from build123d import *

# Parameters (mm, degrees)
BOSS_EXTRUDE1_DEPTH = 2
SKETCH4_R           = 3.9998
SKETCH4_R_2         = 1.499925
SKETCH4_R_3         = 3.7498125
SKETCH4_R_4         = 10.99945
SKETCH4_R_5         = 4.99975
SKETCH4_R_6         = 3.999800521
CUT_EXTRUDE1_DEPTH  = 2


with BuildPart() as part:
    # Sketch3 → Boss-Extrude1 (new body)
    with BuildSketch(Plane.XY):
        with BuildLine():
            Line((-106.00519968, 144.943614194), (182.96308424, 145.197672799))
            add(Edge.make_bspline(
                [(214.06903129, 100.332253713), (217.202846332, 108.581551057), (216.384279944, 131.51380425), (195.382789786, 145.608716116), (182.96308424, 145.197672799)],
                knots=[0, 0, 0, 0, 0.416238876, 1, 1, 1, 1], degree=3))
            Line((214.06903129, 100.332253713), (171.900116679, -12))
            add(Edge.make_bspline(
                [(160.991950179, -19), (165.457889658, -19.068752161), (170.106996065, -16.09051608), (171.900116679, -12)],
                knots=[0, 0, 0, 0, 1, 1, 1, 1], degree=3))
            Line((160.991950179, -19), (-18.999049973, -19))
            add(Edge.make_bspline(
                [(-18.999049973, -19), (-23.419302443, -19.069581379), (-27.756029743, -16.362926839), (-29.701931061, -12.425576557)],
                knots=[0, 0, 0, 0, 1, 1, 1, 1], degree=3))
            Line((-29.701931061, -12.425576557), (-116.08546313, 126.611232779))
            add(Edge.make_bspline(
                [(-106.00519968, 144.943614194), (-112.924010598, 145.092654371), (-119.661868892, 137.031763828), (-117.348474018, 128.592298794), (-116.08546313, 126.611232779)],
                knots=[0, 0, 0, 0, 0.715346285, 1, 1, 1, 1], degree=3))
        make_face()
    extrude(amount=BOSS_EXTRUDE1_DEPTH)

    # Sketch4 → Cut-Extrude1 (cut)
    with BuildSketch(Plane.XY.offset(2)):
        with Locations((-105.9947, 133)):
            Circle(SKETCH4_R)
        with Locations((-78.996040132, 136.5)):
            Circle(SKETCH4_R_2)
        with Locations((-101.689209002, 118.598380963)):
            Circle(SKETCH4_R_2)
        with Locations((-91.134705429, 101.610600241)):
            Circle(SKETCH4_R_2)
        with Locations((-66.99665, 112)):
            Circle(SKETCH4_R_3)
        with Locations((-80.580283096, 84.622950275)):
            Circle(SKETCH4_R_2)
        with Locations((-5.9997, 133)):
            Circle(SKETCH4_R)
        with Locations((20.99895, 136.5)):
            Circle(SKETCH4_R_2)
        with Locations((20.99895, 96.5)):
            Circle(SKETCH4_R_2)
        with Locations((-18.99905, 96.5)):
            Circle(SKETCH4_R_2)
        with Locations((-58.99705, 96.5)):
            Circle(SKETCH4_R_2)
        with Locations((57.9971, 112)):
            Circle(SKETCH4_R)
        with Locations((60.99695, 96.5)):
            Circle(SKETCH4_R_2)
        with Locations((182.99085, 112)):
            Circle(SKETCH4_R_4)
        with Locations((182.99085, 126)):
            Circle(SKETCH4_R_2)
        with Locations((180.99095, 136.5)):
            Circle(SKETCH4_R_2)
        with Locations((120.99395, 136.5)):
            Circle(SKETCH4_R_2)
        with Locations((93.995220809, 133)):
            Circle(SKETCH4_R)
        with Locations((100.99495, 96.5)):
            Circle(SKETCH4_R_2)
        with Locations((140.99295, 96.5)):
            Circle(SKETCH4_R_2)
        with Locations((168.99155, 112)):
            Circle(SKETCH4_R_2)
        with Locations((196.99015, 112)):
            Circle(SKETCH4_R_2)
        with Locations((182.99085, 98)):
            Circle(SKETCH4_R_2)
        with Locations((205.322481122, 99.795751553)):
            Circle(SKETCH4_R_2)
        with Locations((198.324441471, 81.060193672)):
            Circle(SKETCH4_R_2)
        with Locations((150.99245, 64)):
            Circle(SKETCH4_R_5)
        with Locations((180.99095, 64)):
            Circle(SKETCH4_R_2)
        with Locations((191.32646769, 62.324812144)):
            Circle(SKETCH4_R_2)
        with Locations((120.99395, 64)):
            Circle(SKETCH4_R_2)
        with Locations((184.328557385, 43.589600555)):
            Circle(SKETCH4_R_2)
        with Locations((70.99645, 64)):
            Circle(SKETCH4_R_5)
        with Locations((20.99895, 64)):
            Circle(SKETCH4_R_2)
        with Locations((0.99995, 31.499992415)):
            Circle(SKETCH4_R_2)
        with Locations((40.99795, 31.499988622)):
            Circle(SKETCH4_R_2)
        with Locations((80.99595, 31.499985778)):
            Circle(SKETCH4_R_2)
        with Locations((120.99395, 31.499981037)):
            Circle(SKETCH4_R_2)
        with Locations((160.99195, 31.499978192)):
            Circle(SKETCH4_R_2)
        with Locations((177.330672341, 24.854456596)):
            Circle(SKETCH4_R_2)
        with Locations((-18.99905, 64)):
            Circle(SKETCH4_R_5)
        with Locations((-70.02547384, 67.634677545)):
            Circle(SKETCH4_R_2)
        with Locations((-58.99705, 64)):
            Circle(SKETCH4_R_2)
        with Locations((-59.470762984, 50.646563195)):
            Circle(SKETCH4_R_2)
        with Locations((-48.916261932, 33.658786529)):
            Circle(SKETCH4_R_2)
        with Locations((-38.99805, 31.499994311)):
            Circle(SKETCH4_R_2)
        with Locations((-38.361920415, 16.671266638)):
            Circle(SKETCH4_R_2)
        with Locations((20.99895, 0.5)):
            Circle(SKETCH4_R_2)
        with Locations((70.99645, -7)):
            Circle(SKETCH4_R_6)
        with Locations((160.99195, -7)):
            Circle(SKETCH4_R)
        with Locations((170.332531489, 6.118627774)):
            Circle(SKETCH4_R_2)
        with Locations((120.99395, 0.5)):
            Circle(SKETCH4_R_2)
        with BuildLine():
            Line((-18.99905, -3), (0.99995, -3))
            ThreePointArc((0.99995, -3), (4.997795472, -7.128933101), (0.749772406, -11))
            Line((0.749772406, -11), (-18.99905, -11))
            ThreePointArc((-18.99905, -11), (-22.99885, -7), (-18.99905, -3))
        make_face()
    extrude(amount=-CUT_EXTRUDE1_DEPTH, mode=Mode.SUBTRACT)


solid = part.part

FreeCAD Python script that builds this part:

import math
import FreeCAD as App
import Part
import Sketcher
from FreeCAD import Vector

doc = App.newDocument("Part")
body = doc.addObject("PartDesign::Body", "Body")

# Sketch on XY plane
sketch1 = body.newObject("Sketcher::SketchObject", "Sketch")
sketch1.AttachmentSupport = (doc.getObject("XY_Plane"), [""])
sketch1.MapMode = "FlatFace"
sketch1.addGeometry([
    Part.LineSegment(Vector(182.963084, 145.197673, 0), Vector(-106.0052, 144.943614, 0)),  # 0
    Part.BSplineCurve([Vector(-106.0052, 144.943614, 0), Vector(-112.924011, 145.092654, 0), Vector(-119.661869, 137.031764, 0), Vector(-117.348474, 128.592299, 0), Vector(-116.085463, 126.611233, 0)], [4, 1, 4], [0, 0.715346285, 1], False, 3, [1, 1, 1, 1, 1], False),  # 1
    Part.LineSegment(Vector(-116.085463, 126.611233, 0), Vector(-29.701931, -12.425577, 0)),  # 2
    Part.BSplineCurve([Vector(-18.99905, -19, 0), Vector(-23.419302, -19.069581, 0), Vector(-27.75603, -16.362927, 0), Vector(-29.701931, -12.425577, 0)], [4, 4], [0, 1], False, 3, [1, 1, 1, 1], False),  # 3
    Part.LineSegment(Vector(-18.99905, -19, 0), Vector(160.99195, -19, 0)),  # 4
    Part.BSplineCurve([Vector(160.99195, -19, 0), Vector(165.45789, -19.068752, 0), Vector(170.106996, -16.090516, 0), Vector(171.900117, -12, 0)], [4, 4], [0, 1], False, 3, [1, 1, 1, 1], False),  # 5
    Part.LineSegment(Vector(171.900117, -12, 0), Vector(214.069031, 100.332254, 0)),  # 6
    Part.BSplineCurve([Vector(214.069031, 100.332254, 0), Vector(217.202846, 108.581551, 0), Vector(216.38428, 131.513804, 0), Vector(195.38279, 145.608716, 0), Vector(182.963084, 145.197673, 0)], [4, 1, 4], [0, 0.416238876, 1], False, 3, [1, 1, 1, 1, 1], False),  # 7
], False)
sketch1.addConstraint([
    Sketcher.Constraint("Block", 1),
    Sketcher.Constraint("Block", 3),
    Sketcher.Constraint("Block", 5),
    Sketcher.Constraint("Block", 7),
    Sketcher.Constraint("Coincident", 0, 2, 1, 1),
    Sketcher.Constraint("Coincident", 1, 2, 2, 1),
    Sketcher.Constraint("Coincident", 2, 2, 3, 2),
    Sketcher.Constraint("Coincident", 3, 1, 4, 1),
    Sketcher.Constraint("Coincident", 4, 2, 5, 1),
    Sketcher.Constraint("Coincident", 5, 2, 6, 1),
    Sketcher.Constraint("Coincident", 6, 2, 7, 1),
    Sketcher.Constraint("Coincident", 7, 2, 0, 1),
])
pad1 = body.newObject("PartDesign::Pad", "Pad")
pad1.Profile = sketch1
pad1.Length = 2

# Sketch on XY plane
sketch2 = body.newObject("Sketcher::SketchObject", "Sketch001")
sketch2.AttachmentSupport = (doc.getObject("XY_Plane"), [""])
sketch2.MapMode = "FlatFace"
sketch2.AttachmentOffset = App.Placement(Vector(0, 0, 2), App.Rotation())
sketch2.addGeometry([
    Part.Circle(Vector(-106, 133, 0), Vector(0, 0, 1), 4),  # 0
    Part.Circle(Vector(-79, 136.5, 0), Vector(0, 0, 1), 1.5),  # 1
    Part.Circle(Vector(-101.7, 118.6, 0), Vector(0, 0, 1), 1.5),  # 2
    Part.Circle(Vector(-91.1, 101.6, 0), Vector(0, 0, 1), 1.5),  # 3
    Part.Circle(Vector(-67, 112, 0), Vector(0, 0, 1), 3.7),  # 4
    Part.Circle(Vector(-80.6, 84.6, 0), Vector(0, 0, 1), 1.5),  # 5
    Part.Circle(Vector(-6, 133, 0), Vector(0, 0, 1), 4),  # 6
    Part.Circle(Vector(21, 136.5, 0), Vector(0, 0, 1), 1.5),  # 7
    Part.Circle(Vector(21, 96.5, 0), Vector(0, 0, 1), 1.5),  # 8
    Part.Circle(Vector(-19, 96.5, 0), Vector(0, 0, 1), 1.5),  # 9
    Part.Circle(Vector(-59, 96.5, 0), Vector(0, 0, 1), 1.5),  # 10
    Part.Circle(Vector(58, 112, 0), Vector(0, 0, 1), 4),  # 11
    Part.Circle(Vector(61, 96.5, 0), Vector(0, 0, 1), 1.5),  # 12
    Part.Circle(Vector(183, 112, 0), Vector(0, 0, 1), 11),  # 13
    Part.Circle(Vector(183, 126, 0), Vector(0, 0, 1), 1.5),  # 14
    Part.Circle(Vector(181, 136.5, 0), Vector(0, 0, 1), 1.5),  # 15
    Part.Circle(Vector(121, 136.5, 0), Vector(0, 0, 1), 1.5),  # 16
    Part.Circle(Vector(94, 133, 0), Vector(0, 0, 1), 4),  # 17
    Part.Circle(Vector(101, 96.5, 0), Vector(0, 0, 1), 1.5),  # 18
    Part.Circle(Vector(141, 96.5, 0), Vector(0, 0, 1), 1.5),  # 19
    Part.Circle(Vector(169, 112, 0), Vector(0, 0, 1), 1.5),  # 20
    Part.Circle(Vector(197, 112, 0), Vector(0, 0, 1), 1.5),  # 21
    Part.Circle(Vector(183, 98, 0), Vector(0, 0, 1), 1.5),  # 22
    Part.Circle(Vector(205.3, 99.8, 0), Vector(0, 0, 1), 1.5),  # 23
    Part.Circle(Vector(198.3, 81.1, 0), Vector(0, 0, 1), 1.5),  # 24
    Part.Circle(Vector(151, 64, 0), Vector(0, 0, 1), 5),  # 25
    Part.Circle(Vector(181, 64, 0), Vector(0, 0, 1), 1.5),  # 26
    Part.Circle(Vector(191.3, 62.3, 0), Vector(0, 0, 1), 1.5),  # 27
    Part.Circle(Vector(121, 64, 0), Vector(0, 0, 1), 1.5),  # 28
    Part.Circle(Vector(184.3, 43.6, 0), Vector(0, 0, 1), 1.5),  # 29
    Part.Circle(Vector(71, 64, 0), Vector(0, 0, 1), 5),  # 30
    Part.Circle(Vector(21, 64, 0), Vector(0, 0, 1), 1.5),  # 31
    Part.Circle(Vector(1, 31.5, 0), Vector(0, 0, 1), 1.5),  # 32
    Part.Circle(Vector(41, 31.5, 0), Vector(0, 0, 1), 1.5),  # 33
    Part.Circle(Vector(81, 31.5, 0), Vector(0, 0, 1), 1.5),  # 34
    Part.Circle(Vector(121, 31.5, 0), Vector(0, 0, 1), 1.5),  # 35
    Part.Circle(Vector(161, 31.5, 0), Vector(0, 0, 1), 1.5),  # 36
    Part.Circle(Vector(177.3, 24.9, 0), Vector(0, 0, 1), 1.5),  # 37
    Part.Circle(Vector(-19, 64, 0), Vector(0, 0, 1), 5),  # 38
    Part.Circle(Vector(-70, 67.6, 0), Vector(0, 0, 1), 1.5),  # 39
    Part.Circle(Vector(-59, 64, 0), Vector(0, 0, 1), 1.5),  # 40
    Part.Circle(Vector(-59.5, 50.6, 0), Vector(0, 0, 1), 1.5),  # 41
    Part.Circle(Vector(-48.9, 33.7, 0), Vector(0, 0, 1), 1.5),  # 42
    Part.Circle(Vector(-39, 31.5, 0), Vector(0, 0, 1), 1.5),  # 43
    Part.Circle(Vector(-38.4, 16.7, 0), Vector(0, 0, 1), 1.5),  # 44
    Part.Circle(Vector(21, 0.5, 0), Vector(0, 0, 1), 1.5),  # 45
    Part.Circle(Vector(71, -7, 0), Vector(0, 0, 1), 4),  # 46
    Part.Circle(Vector(161, -7, 0), Vector(0, 0, 1), 4),  # 47
    Part.Circle(Vector(170.3, 6.1, 0), Vector(0, 0, 1), 1.5),  # 48
    Part.Circle(Vector(121, 0.5, 0), Vector(0, 0, 1), 1.5),  # 49
    Part.LineSegment(Vector(1, -3, 0), Vector(-19, -3, 0)),  # 50
    Part.ArcOfCircle(Part.Circle(Vector(-19, -7, 0), Vector(0, 0, 1), 4), math.radians(90), math.radians(270)),  # 51
    Part.LineSegment(Vector(-19, -11, 0), Vector(0.7, -11, 0)),  # 52
    Part.ArcOfCircle(Part.Circle(Vector(1, -7, 0), Vector(0, 0, 1), 4), math.radians(-94), math.radians(90)),  # 53
], False)
sketch2.addConstraint([
    Sketcher.Constraint("Coincident", 50, 2, 51, 1),
    Sketcher.Constraint("Coincident", 51, 2, 52, 1),
    Sketcher.Constraint("Coincident", 52, 2, 53, 1),
    Sketcher.Constraint("Coincident", 53, 2, 50, 1),
    Sketcher.Constraint("Horizontal", 50),
    Sketcher.Constraint("Horizontal", 52),
    Sketcher.Constraint("Equal", 1, 2),
    Sketcher.Constraint("Equal", 2, 3),
    Sketcher.Constraint("Equal", 3, 5),
    Sketcher.Constraint("Equal", 0, 6),
    Sketcher.Constraint("Equal", 5, 7),
    Sketcher.Constraint("Equal", 7, 8),
    Sketcher.Constraint("Equal", 8, 9),
    Sketcher.Constraint("Equal", 9, 10),
    Sketcher.Constraint("Equal", 6, 11),
    Sketcher.Constraint("Equal", 10, 12),
    Sketcher.Constraint("Equal", 12, 14),
    Sketcher.Constraint("Equal", 14, 15),
    Sketcher.Constraint("Equal", 15, 16),
    Sketcher.Constraint("Equal", 11, 17),
    Sketcher.Constraint("Equal", 16, 18),
    Sketcher.Constraint("Equal", 18, 19),
    Sketcher.Constraint("Equal", 19, 20),
    Sketcher.Constraint("Equal", 20, 21),
    Sketcher.Constraint("Equal", 21, 22),
    Sketcher.Constraint("Equal", 22, 23),
    Sketcher.Constraint("Equal", 23, 24),
    Sketcher.Constraint("Equal", 24, 26),
    Sketcher.Constraint("Equal", 26, 27),
    Sketcher.Constraint("Equal", 27, 28),
    Sketcher.Constraint("Equal", 28, 29),
    Sketcher.Constraint("Equal", 25, 30),
    Sketcher.Constraint("Equal", 29, 31),
    Sketcher.Constraint("Equal", 31, 32),
    Sketcher.Constraint("Equal", 32, 33),
    Sketcher.Constraint("Equal", 33, 34),
    Sketcher.Constraint("Equal", 34, 35),
    Sketcher.Constraint("Equal", 35, 36),
    Sketcher.Constraint("Equal", 36, 37),
    Sketcher.Constraint("Equal", 30, 38),
    Sketcher.Constraint("Equal", 37, 39),
    Sketcher.Constraint("Equal", 39, 40),
    Sketcher.Constraint("Equal", 40, 41),
    Sketcher.Constraint("Equal", 41, 42),
    Sketcher.Constraint("Equal", 42, 43),
    Sketcher.Constraint("Equal", 43, 44),
    Sketcher.Constraint("Equal", 44, 45),
    Sketcher.Constraint("Equal", 17, 46),
    Sketcher.Constraint("Equal", 46, 47),
    Sketcher.Constraint("Equal", 45, 48),
    Sketcher.Constraint("Equal", 48, 49),
    Sketcher.Constraint("Horizontal", 0, 3, 6, 3),
    Sketcher.Constraint("Horizontal", 1, 3, 7, 3),
    Sketcher.Constraint("Horizontal", 8, 3, 9, 3),
    Sketcher.Constraint("Horizontal", 9, 3, 10, 3),
    Sketcher.Constraint("Horizontal", 4, 3, 11, 3),
    Sketcher.Constraint("Horizontal", 10, 3, 12, 3),
    Sketcher.Constraint("Horizontal", 11, 3, 13, 3),
    Sketcher.Constraint("Horizontal", 7, 3, 15, 3),
    Sketcher.Constraint("Horizontal", 15, 3, 16, 3),
    Sketcher.Constraint("Horizontal", 6, 3, 17, 3),
    Sketcher.Constraint("Horizontal", 12, 3, 18, 3),
    Sketcher.Constraint("Horizontal", 18, 3, 19, 3),
    Sketcher.Constraint("Horizontal", 13, 3, 20, 3),
    Sketcher.Constraint("Horizontal", 20, 3, 21, 3),
    Sketcher.Constraint("Horizontal", 25, 3, 26, 3),
    Sketcher.Constraint("Horizontal", 26, 3, 28, 3),
    Sketcher.Constraint("Horizontal", 28, 3, 30, 3),
    Sketcher.Constraint("Horizontal", 30, 3, 31, 3),
    Sketcher.Constraint("Horizontal", 31, 3, 38, 3),
    Sketcher.Constraint("Horizontal", 38, 3, 40, 3),
    Sketcher.Constraint("Horizontal", 32, 3, 43, 3),
    Sketcher.Constraint("Horizontal", 46, 3, 47, 3),
    Sketcher.Constraint("Horizontal", 45, 3, 49, 3),
    Sketcher.Constraint("Horizontal", 47, 3, 51, 3),
    Sketcher.Constraint("Vertical", 7, 3, 8, 3),
    Sketcher.Constraint("Vertical", 13, 3, 14, 3),
    Sketcher.Constraint("Vertical", 14, 3, 22, 3),
    Sketcher.Constraint("Vertical", 15, 3, 26, 3),
    Sketcher.Constraint("Vertical", 16, 3, 28, 3),
    Sketcher.Constraint("Vertical", 8, 3, 31, 3),
    Sketcher.Constraint("Vertical", 28, 3, 35, 3),
    Sketcher.Constraint("Vertical", 9, 3, 38, 3),
    Sketcher.Constraint("Vertical", 10, 3, 40, 3),
    Sketcher.Constraint("Vertical", 31, 3, 45, 3),
    Sketcher.Constraint("Vertical", 30, 3, 46, 3),
    Sketcher.Constraint("Vertical", 36, 3, 47, 3),
    Sketcher.Constraint("Vertical", 35, 3, 49, 3),
    Sketcher.Constraint("Vertical", 38, 3, 50, 2),
    Sketcher.Constraint("Vertical", 50, 2, 51, 2),
    Sketcher.Constraint("Vertical", 32, 3, 53, 2),
    Sketcher.Constraint("Radius", 51, 4.0),
    Sketcher.Constraint("DistanceY", -1, 1, 0, 3, 133.0),
    Sketcher.Constraint("DistanceY", -1, 1, 4, 3, 112.0),
    Sketcher.Constraint("DistanceY", -1, 1, 14, 3, 126.0),
    Sketcher.Constraint("DistanceY", -1, 1, 22, 3, 98.0),
    Sketcher.Constraint("DistanceY", -1, 1, 25, 3, 64.0),
    Sketcher.Constraint("DistanceY", 46, 3, -1, 1, 7.0),
    Sketcher.Constraint("DistanceY", 8, 3, 7, 3, 40.0),
    Sketcher.Constraint("Diameter", 0, 7.9996),
    Sketcher.Constraint("Diameter", 13, 21.9989),
    Sketcher.Constraint("Diameter", 25, 9.9995),
    Sketcher.Constraint("DistanceY", -1, 1, 1, 3, 136.5),
    Sketcher.Constraint("DistanceY", -1, 1, 45, 3, 0.5),
    Sketcher.Constraint("Diameter", 1, 2.99985),
    Sketcher.Constraint("DistanceX", 50, 2, 50, 1, 19.999),
    Sketcher.Constraint("Radius", 53, 4.003789),
    Sketcher.Constraint("Diameter", 4, 7.499625),
    Sketcher.Constraint("DistanceX", 9, 3, 8, 3, 39.998),
    Sketcher.Constraint("DistanceX", 10, 3, 9, 3, 39.998),
    Sketcher.Constraint("DistanceX", 8, 3, 12, 3, 39.998),
    Sketcher.Constraint("DistanceX", 12, 3, 15, 3, 119.994),
    Sketcher.Constraint("DistanceX", 16, 3, 15, 3, 59.997),
    Sketcher.Constraint("DistanceX", 12, 3, 18, 3, 39.998),
    Sketcher.Constraint("DistanceX", 18, 3, 19, 3, 39.998),
    Sketcher.Constraint("DistanceX", 31, 3, 33, 3, 19.999),
    Sketcher.Constraint("DistanceX", 33, 3, 34, 3, 39.998),
    Sketcher.Constraint("DistanceX", 36, 3, 26, 3, 19.999),
    Sketcher.Constraint("DistanceX", 43, 3, 38, 3, 19.999),
    Sketcher.Constraint("DistanceX", 0, 3, -1, 1, 105.9947),
    Sketcher.Constraint("DistanceY", -1, 1, 3, 3, 101.6106),
    Sketcher.Constraint("DistanceX", 6, 3, -1, 1, 5.9997),
    Sketcher.Constraint("DistanceX", -1, 1, 11, 3, 57.9971),
    Sketcher.Constraint("DistanceY", -1, 1, 29, 3, 43.589601),
    Sketcher.Constraint("DistanceX", 4, 3, 7, 3, 87.9956),
    Sketcher.Constraint("DistanceX", 12, 3, 13, 3, 121.9939),
    Sketcher.Constraint("DistanceX", 20, 3, 13, 3, 13.9993),
    Sketcher.Constraint("DistanceX", 13, 3, 21, 3, 13.9993),
    Sketcher.Constraint("DistanceX", 19, 3, 25, 3, 9.9995),
    Sketcher.Constraint("DistanceX", 12, 3, 30, 3, 9.9995),
    Sketcher.Constraint("DistanceX", 41, 3, 42, 3, 10.554501),
    Sketcher.Constraint("DistanceX", 51, 3, 45, 3, 39.9978),
    Sketcher.Constraint("DistanceX", 52, 1, 52, 2, 19.748822),
    Sketcher.Constraint("DistanceX", 1, 3, -1, 1, 78.99604),
    Sketcher.Constraint("DistanceX", 2, 3, -1, 1, 101.689209),
    Sketcher.Constraint("DistanceY", -1, 1, 2, 3, 118.598381),
    Sketcher.Constraint("DistanceX", 4, 3, -1, 1, 66.99665),
    Sketcher.Constraint("DistanceY", -1, 1, 5, 3, 84.62295),
    Sketcher.Constraint("DistanceX", -1, 1, 17, 3, 93.995221),
    Sketcher.Constraint("DistanceX", -1, 1, 23, 3, 205.322481),
    Sketcher.Constraint("DistanceY", -1, 1, 23, 3, 99.795752),
    Sketcher.Constraint("DistanceX", -1, 1, 24, 3, 198.324441),
    Sketcher.Constraint("DistanceY", -1, 1, 33, 3, 31.499989),
    Sketcher.Constraint("DistanceY", -1, 1, 35, 3, 31.499981),
    Sketcher.Constraint("DistanceY", -1, 1, 36, 3, 31.499978),
    Sketcher.Constraint("DistanceX", 42, 3, -1, 1, 48.916262),
    Sketcher.Constraint("DistanceX", 44, 3, -1, 1, 38.36192),
    Sketcher.Constraint("DistanceX", -1, 1, 48, 3, 170.332531),
    Sketcher.Constraint("DistanceY", 27, 3, 24, 3, 18.735382),
    Sketcher.Constraint("DistanceY", 27, 3, 23, 3, 37.470939),
    Sketcher.Constraint("DistanceX", 29, 3, 27, 3, 6.99791),
    Sketcher.Constraint("DistanceY", 37, 3, 36, 3, 6.645522),
    Sketcher.Constraint("DistanceX", 5, 3, 39, 3, 10.554809),
    Sketcher.Constraint("DistanceX", 3, 3, 39, 3, 21.109232),
    Sketcher.Constraint("DistanceX", 39, 3, 41, 3, 10.554711),
    Sketcher.Constraint("DistanceY", 42, 3, 39, 3, 33.975891),
    Sketcher.Constraint("DistanceY", 43, 3, 41, 3, 19.146569),
    Sketcher.Constraint("DistanceY", 44, 3, 42, 3, 16.98752),
    Sketcher.Constraint("DistanceX", 48, 3, 37, 3, 6.998141),
    Sketcher.Constraint("DistanceY", 48, 3, 37, 3, 18.735829),
    Sketcher.Constraint("DistanceY", 53, 3, 32, 3, 38.50378),
    Sketcher.Constraint("DistanceX", -1, 1, 27, 3, 191.326468),
    Sketcher.Constraint("DistanceY", -1, 1, 34, 3, 31.499986),
    Sketcher.Constraint("DistanceY", -1, 1, 39, 3, 67.634678),
])
pocket1 = body.newObject("PartDesign::Pocket", "Pocket")
pocket1.Profile = sketch2
pocket1.Length = 2

doc.recompute()
